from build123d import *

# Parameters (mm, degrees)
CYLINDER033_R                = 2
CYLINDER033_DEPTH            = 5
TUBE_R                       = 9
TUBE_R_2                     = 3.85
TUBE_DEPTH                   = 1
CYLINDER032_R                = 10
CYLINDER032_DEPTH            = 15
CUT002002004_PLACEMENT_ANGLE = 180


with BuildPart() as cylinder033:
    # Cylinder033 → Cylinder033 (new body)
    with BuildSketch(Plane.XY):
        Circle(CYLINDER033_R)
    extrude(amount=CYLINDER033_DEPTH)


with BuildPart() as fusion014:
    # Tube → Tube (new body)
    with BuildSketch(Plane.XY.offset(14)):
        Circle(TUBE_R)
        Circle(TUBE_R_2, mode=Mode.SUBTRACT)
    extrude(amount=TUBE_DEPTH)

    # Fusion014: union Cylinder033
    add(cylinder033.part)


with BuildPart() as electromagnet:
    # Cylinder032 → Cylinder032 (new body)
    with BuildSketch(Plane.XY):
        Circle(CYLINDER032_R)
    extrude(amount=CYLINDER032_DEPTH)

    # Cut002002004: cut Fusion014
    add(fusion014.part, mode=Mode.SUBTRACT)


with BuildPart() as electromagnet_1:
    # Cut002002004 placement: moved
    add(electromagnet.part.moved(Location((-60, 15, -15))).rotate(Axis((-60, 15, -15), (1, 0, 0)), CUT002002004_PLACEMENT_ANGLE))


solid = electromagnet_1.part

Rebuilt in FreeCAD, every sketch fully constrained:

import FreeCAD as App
import Part
import Sketcher
from FreeCAD import Vector

doc = App.newDocument("Part")
body = doc.addObject("PartDesign::Body", "Body")

# Sketch on XY plane
sketch1 = body.newObject("Sketcher::SketchObject", "Sketch")
sketch1.AttachmentSupport = (doc.getObject("XY_Plane"), [""])
sketch1.MapMode = "FlatFace"
sketch1.addGeometry(Part.Circle(Vector(0, 0, 0), Vector(0, 0, 1), 2), False)
sketch1.addConstraint([
    Sketcher.Constraint("Coincident", 0, 3, -1, 1),
    Sketcher.Constraint("Diameter", 0, 4.0),
])
pad1 = body.newObject("PartDesign::Pad", "Pad")
pad1.Profile = sketch1
pad1.Length = 5
body2 = doc.addObject("PartDesign::Body", "Body001")
body2.AllowCompound = True

# Sketch on XY plane
sketch2 = body2.newObject("Sketcher::SketchObject", "Sketch001")
sketch2.AttachmentSupport = (doc.getObject("XY_Plane001"), [""])
sketch2.MapMode = "FlatFace"
sketch2.AttachmentOffset = App.Placement(Vector(0, 0, 14), App.Rotation())
sketch2.addGeometry([
    Part.Circle(Vector(0, 0, 0), Vector(0, 0, 1), 9),
    Part.Circle(Vector(0, 0, 0), Vector(0, 0, 1), 3.9),
], False)
sketch2.addConstraint([
    Sketcher.Constraint("Coincident", 0, 3, -1, 1),
    Sketcher.Constraint("Coincident", 1, 3, -1, 1),
    Sketcher.Constraint("Diameter", 0, 18.0),
    Sketcher.Constraint("Diameter", 1, 7.7),
])
pad2 = body2.newObject("PartDesign::Pad", "Pad001")
pad2.Profile = sketch2
pad2.Length = 1
doc.recompute()

boolean = body2.newObject("PartDesign::Boolean", "Boolean")
boolean.Type = "Fuse"
boolean.addObjects([body])
body3 = doc.addObject("PartDesign::Body", "Body002")

# Sketch on XY plane
sketch3 = body3.newObject("Sketcher::SketchObject", "Sketch002")
sketch3.AttachmentSupport = (doc.getObject("XY_Plane002"), [""])
sketch3.MapMode = "FlatFace"
sketch3.addGeometry(Part.Circle(Vector(0, 0, 0), Vector(0, 0, 1), 10), False)
sketch3.addConstraint([
    Sketcher.Constraint("Coincident", 0, 3, -1, 1),
    Sketcher.Constraint("Diameter", 0, 20.0),
])
pad3 = body3.newObject("PartDesign::Pad", "Pad002")
pad3.Profile = sketch3
pad3.Length = 15
doc.recompute()

boolean2 = body3.newObject("PartDesign::Boolean", "Boolean001")
boolean2.Type = "Cut"
boolean2.addObjects([body2])
body4 = doc.addObject("PartDesign::Body", "Body003")
doc.recompute()

body3.Placement = App.Placement(Vector(-60, 15, -15), App.Rotation(Vector(1, 0, 0), 180))
boolean3 = body4.newObject("PartDesign::Boolean", "Boolean002")
boolean3.Type = "Fuse"
boolean3.addObjects([body3])

doc.recompute()
